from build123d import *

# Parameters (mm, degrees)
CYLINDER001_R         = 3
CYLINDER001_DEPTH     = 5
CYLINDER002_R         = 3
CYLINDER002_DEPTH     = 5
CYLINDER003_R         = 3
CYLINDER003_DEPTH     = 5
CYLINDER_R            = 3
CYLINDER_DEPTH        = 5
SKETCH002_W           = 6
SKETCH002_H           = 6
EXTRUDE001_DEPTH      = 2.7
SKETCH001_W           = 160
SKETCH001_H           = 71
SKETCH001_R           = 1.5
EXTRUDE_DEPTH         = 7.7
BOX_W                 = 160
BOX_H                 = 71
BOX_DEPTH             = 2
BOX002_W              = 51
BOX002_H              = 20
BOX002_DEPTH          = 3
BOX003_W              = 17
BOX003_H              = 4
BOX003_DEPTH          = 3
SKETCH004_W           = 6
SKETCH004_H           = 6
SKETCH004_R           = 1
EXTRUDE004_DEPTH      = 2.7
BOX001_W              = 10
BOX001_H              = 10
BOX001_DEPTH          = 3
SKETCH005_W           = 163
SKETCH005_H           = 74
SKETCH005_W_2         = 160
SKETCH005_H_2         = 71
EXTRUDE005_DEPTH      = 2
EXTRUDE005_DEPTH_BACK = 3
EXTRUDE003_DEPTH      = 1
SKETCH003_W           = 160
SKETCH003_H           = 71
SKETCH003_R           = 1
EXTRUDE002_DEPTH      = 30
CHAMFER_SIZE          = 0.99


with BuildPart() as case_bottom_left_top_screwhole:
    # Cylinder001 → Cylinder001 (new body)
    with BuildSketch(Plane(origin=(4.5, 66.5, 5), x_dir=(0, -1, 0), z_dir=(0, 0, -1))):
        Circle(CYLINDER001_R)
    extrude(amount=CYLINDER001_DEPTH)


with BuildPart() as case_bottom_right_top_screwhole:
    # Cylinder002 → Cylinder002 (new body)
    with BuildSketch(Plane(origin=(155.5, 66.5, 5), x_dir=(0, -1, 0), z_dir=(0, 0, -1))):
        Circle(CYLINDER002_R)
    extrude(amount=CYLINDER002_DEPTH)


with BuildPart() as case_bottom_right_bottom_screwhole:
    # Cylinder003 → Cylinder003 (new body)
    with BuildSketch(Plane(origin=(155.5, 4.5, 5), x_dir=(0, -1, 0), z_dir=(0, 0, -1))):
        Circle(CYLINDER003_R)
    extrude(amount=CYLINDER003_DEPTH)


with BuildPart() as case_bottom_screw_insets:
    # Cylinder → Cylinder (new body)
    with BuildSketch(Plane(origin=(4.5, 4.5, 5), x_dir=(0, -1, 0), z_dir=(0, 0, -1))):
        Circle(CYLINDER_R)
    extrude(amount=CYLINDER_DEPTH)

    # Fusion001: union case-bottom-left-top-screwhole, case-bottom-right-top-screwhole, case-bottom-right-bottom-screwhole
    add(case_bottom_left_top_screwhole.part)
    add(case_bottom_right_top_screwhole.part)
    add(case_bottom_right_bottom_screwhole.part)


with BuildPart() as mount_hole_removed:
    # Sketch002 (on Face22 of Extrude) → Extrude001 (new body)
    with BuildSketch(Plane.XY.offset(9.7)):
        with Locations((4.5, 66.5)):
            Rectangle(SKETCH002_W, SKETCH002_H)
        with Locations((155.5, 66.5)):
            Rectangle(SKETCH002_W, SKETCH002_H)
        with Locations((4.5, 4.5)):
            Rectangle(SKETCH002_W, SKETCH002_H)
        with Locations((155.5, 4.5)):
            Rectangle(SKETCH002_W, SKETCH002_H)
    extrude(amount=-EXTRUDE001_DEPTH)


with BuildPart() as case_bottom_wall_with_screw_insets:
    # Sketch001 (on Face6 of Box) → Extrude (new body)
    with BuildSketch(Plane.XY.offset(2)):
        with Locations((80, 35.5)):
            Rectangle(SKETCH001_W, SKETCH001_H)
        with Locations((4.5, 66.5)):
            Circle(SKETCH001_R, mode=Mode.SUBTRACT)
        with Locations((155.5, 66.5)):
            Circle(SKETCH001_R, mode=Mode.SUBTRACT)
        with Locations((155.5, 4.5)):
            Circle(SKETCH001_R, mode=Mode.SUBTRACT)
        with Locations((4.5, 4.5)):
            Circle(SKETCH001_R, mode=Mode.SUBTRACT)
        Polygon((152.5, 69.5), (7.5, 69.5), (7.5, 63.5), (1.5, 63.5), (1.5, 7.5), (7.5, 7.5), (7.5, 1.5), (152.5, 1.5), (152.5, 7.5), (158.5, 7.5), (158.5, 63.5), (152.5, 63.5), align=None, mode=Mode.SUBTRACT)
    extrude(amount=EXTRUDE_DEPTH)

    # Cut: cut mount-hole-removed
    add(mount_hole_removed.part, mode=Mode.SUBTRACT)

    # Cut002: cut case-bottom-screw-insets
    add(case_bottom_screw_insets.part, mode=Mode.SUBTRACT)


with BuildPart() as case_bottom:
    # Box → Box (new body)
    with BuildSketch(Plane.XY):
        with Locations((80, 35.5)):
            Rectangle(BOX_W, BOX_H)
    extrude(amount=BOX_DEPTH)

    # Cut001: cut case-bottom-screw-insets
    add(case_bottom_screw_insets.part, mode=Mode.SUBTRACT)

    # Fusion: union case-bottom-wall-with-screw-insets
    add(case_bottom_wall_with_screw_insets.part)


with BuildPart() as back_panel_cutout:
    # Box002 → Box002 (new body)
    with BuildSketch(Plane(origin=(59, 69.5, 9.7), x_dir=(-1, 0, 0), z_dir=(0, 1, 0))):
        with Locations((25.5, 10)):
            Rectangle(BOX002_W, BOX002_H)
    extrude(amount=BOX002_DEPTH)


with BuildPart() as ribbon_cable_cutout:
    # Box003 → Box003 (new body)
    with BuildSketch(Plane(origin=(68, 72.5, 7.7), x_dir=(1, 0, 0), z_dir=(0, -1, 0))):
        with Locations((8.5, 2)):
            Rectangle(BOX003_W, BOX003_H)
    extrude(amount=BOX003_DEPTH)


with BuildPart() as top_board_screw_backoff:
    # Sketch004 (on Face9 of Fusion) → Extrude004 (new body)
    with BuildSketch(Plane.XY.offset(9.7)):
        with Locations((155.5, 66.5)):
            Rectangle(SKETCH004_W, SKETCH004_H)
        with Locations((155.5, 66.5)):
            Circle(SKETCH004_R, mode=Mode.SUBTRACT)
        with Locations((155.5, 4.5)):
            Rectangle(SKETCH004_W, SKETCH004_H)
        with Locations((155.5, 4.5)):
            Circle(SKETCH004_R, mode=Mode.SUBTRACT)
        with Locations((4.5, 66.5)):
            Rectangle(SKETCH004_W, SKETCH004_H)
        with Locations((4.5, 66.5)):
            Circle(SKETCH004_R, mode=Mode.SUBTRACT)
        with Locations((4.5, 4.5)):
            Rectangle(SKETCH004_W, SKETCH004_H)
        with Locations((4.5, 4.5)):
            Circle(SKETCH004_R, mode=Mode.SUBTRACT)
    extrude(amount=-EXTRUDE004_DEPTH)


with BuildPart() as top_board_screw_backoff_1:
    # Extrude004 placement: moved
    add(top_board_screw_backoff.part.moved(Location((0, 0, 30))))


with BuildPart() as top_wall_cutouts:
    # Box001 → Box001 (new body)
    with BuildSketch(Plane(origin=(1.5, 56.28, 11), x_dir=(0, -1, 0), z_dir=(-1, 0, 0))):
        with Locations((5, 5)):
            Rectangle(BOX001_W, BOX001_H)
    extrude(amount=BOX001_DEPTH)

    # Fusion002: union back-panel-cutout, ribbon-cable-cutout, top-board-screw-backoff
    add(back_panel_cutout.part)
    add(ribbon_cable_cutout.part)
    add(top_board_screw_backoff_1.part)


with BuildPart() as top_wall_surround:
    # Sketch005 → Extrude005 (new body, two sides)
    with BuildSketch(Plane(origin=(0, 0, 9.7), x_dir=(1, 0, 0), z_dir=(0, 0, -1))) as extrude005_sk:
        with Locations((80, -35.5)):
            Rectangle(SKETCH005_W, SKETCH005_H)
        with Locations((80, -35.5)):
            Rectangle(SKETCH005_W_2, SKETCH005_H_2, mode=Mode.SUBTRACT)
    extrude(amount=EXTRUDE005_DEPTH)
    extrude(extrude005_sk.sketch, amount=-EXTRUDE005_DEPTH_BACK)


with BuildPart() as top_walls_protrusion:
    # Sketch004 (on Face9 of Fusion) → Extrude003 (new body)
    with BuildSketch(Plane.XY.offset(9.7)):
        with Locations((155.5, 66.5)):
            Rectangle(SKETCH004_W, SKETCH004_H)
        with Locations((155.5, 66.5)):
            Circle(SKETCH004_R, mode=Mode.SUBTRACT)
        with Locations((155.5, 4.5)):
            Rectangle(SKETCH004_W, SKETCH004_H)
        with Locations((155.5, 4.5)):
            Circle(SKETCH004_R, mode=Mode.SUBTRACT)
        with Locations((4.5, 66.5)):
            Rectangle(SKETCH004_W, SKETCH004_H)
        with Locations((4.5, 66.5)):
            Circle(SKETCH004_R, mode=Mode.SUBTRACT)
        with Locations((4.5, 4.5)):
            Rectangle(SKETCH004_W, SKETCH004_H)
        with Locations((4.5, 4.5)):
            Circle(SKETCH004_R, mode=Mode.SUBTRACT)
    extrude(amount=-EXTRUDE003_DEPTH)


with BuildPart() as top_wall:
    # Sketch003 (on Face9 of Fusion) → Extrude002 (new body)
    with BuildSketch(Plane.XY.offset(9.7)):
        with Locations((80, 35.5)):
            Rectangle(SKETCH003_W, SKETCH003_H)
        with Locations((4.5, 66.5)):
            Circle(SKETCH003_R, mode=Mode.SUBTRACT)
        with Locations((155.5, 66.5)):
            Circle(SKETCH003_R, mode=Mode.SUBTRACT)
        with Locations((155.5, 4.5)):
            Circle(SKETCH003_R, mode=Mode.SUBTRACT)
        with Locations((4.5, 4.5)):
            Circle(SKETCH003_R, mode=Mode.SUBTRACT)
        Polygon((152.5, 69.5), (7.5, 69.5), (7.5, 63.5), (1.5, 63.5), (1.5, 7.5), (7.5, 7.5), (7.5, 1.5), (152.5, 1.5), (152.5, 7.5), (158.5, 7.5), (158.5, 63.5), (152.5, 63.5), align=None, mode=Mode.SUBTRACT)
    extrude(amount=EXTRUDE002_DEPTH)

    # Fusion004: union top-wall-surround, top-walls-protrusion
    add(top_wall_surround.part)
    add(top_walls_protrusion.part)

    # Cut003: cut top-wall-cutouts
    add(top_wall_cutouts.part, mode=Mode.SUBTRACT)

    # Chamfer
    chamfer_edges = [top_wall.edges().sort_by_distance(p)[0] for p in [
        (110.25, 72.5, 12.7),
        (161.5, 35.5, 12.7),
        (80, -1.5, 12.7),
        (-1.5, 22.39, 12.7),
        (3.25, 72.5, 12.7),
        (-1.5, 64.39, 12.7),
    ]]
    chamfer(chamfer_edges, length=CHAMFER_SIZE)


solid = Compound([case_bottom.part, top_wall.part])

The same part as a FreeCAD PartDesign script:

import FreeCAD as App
import Part
import Sketcher

V = App.Vector
Q = App.Units.Quantity


def edges_at(feature, points):
    """Names of the edges that pass closest to the given points."""
    edges = feature.Shape.Edges
    near = lambda p: min(range(len(edges)), key=lambda i: edges[i].distToShape(Part.Vertex(*p))[0])
    return sorted({f"Edge{near(p) + 1}" for p in points})


def add_polygon(sketch, points):
    """Adds a closed chain of lines whose ends are joined by coincident constraints."""
    first, n = sketch.GeometryCount, len(points)
    for a, b in zip(points, points[1:] + points[:1]):
        sketch.addGeometry(Part.LineSegment(App.Vector(*a, 0), App.Vector(*b, 0)), False)
    for i in range(n):
        sketch.addConstraint(Sketcher.Constraint("Coincident", first + i, 2, first + (i + 1) % n, 1))

doc = App.newDocument("Part")
body = doc.addObject("PartDesign::Body", "Body")

# Sketch on XY plane
sketch1 = body.newObject("Sketcher::SketchObject", "Sketch")
sketch1.AttachmentSupport = (doc.getObject("XY_Plane"), [""])
sketch1.MapMode = "FlatFace"
sketch1.AttachmentOffset = App.Placement(V(0, 0, 5), App.Rotation())
sketch1.addGeometry(Part.Circle(V(4.5, 66.5, 0), V(0, 0, 1), 3), False)
sketch1.addConstraint([
    Sketcher.Constraint("Diameter", 0, Q("6 mm")),
    Sketcher.Constraint("DistanceX", -1, 1, 0, 3, Q("4.5 mm")),
    Sketcher.Constraint("DistanceY", -1, 1, 0, 3, Q("66.5 mm")),
])
pad1 = body.newObject("PartDesign::Pad", "Pad")
pad1.Profile = sketch1
pad1.Length = 5
pad1.Reversed = True
body2 = doc.addObject("PartDesign::Body", "Body001")

# Sketch on XY plane
sketch2 = body2.newObject("Sketcher::SketchObject", "Sketch001")
sketch2.AttachmentSupport = (doc.getObject("XY_Plane001"), [""])
sketch2.MapMode = "FlatFace"
sketch2.AttachmentOffset = App.Placement(V(0, 0, 5), App.Rotation())
sketch2.addGeometry(Part.Circle(V(155.5, 66.5, 0), V(0, 0, 1), 3), False)
sketch2.addConstraint([
    Sketcher.Constraint("Diameter", 0, Q("6 mm")),
    Sketcher.Constraint("DistanceX", -1, 1, 0, 3, Q("155.5 mm")),
    Sketcher.Constraint("DistanceY", -1, 1, 0, 3, Q("66.5 mm")),
])
pad2 = body2.newObject("PartDesign::Pad", "Pad001")
pad2.Profile = sketch2
pad2.Length = 5
pad2.Reversed = True
body3 = doc.addObject("PartDesign::Body", "Body002")

# Sketch on XY plane
sketch3 = body3.newObject("Sketcher::SketchObject", "Sketch002")
sketch3.AttachmentSupport = (doc.getObject("XY_Plane002"), [""])
sketch3.MapMode = "FlatFace"
sketch3.AttachmentOffset = App.Placement(V(0, 0, 5), App.Rotation())
sketch3.addGeometry(Part.Circle(V(155.5, 4.5, 0), V(0, 0, 1), 3), False)
sketch3.addConstraint([
    Sketcher.Constraint("Diameter", 0, Q("6 mm")),
    Sketcher.Constraint("DistanceX", -1, 1, 0, 3, Q("155.5 mm")),
    Sketcher.Constraint("DistanceY", -1, 1, 0, 3, Q("4.5 mm")),
])
pad3 = body3.newObject("PartDesign::Pad", "Pad002")
pad3.Profile = sketch3
pad3.Length = 5
pad3.Reversed = True
body4 = doc.addObject("PartDesign::Body", "Body003")
body4.AllowCompound = True

# Sketch on XY plane
sketch4 = body4.newObject("Sketcher::SketchObject", "Sketch003")
sketch4.AttachmentSupport = (doc.getObject("XY_Plane003"), [""])
sketch4.MapMode = "FlatFace"
sketch4.AttachmentOffset = App.Placement(V(0, 0, 5), App.Rotation())
sketch4.addGeometry(Part.Circle(V(4.5, 4.5, 0), V(0, 0, 1), 3), False)
sketch4.addConstraint([
    Sketcher.Constraint("Diameter", 0, Q("6 mm")),
    Sketcher.Constraint("DistanceX", -1, 1, 0, 3, Q("4.5 mm")),
    Sketcher.Constraint("DistanceY", -1, 1, 0, 3, Q("4.5 mm")),
])
pad4 = body4.newObject("PartDesign::Pad", "Pad003")
pad4.Profile = sketch4
pad4.Length = 5
pad4.Reversed = True
doc.recompute()

boolean = body4.newObject("PartDesign::Boolean", "Boolean")
boolean.Type = "Fuse"
boolean.addObjects([body])
doc.recompute()

boolean2 = body4.newObject("PartDesign::Boolean", "Boolean001")
boolean2.Type = "Fuse"
boolean2.addObjects([body2])
doc.recompute()

boolean3 = body4.newObject("PartDesign::Boolean", "Boolean002")
boolean3.Type = "Fuse"
boolean3.addObjects([body3])
body5 = doc.addObject("PartDesign::Body", "Body004")
body5.AllowCompound = True

# Sketch on XY plane
sketch5 = body5.newObject("Sketcher::SketchObject", "Sketch004")
sketch5.AttachmentSupport = (doc.getObject("XY_Plane004"), [""])
sketch5.MapMode = "FlatFace"
sketch5.AttachmentOffset = App.Placement(V(0, 0, 9.7), App.Rotation())
add_polygon(sketch5, [(1.5, 69.5), (1.5, 63.5), (7.5, 63.5), (7.5, 69.5)])  # lines 0-3
add_polygon(sketch5, [(152.5, 69.5), (152.5, 63.5), (158.5, 63.5), (158.5, 69.5)])  # lines 4-7
add_polygon(sketch5, [(1.5, 7.5), (1.5, 1.5), (7.5, 1.5), (7.5, 7.5)])  # lines 8-11
add_polygon(sketch5, [(152.5, 7.5), (152.5, 1.5), (158.5, 1.5), (158.5, 7.5)])  # lines 12-15
sketch5.addConstraint([
    Sketcher.Constraint("Vertical", 0),
    Sketcher.Constraint("Horizontal", 1),
    Sketcher.Constraint("Vertical", 2),
    Sketcher.Constraint("Horizontal", 3),
    Sketcher.Constraint("Vertical", 4),
    Sketcher.Constraint("Horizontal", 5),
    Sketcher.Constraint("Vertical", 6),
    Sketcher.Constraint("Horizontal", 7),
    Sketcher.Constraint("Vertical", 8),
    Sketcher.Constraint("Horizontal", 9),
    Sketcher.Constraint("Vertical", 10),
    Sketcher.Constraint("Horizontal", 11),
    Sketcher.Constraint("Vertical", 12),
    Sketcher.Constraint("Horizontal", 13),
    Sketcher.Constraint("Vertical", 14),
    Sketcher.Constraint("Horizontal", 15),
    Sketcher.Constraint("Horizontal", 1, 2, 4, 2),
    Sketcher.Constraint("Horizontal", 3, 2, 6, 2),
    Sketcher.Constraint("Horizontal", 9, 2, 12, 2),
    Sketcher.Constraint("Horizontal", 11, 2, 14, 2),
    Sketcher.Constraint("Vertical", 3, 2, 8, 2),
    Sketcher.Constraint("Vertical", 2, 2, 9, 2),
    Sketcher.Constraint("Vertical", 7, 2, 12, 2),
    Sketcher.Constraint("Vertical", 6, 2, 13, 2),
    Sketcher.Constraint("Equal", 3, 5),
    Sketcher.Constraint("Equal", 15, 0),
    Sketcher.Constraint("Equal", 6, 8),
    Sketcher.Constraint("DistanceX", 1, 1, 1, 2, Q("6 mm")),
    Sketcher.Constraint("DistanceX", 1, 2, 4, 2, Q("145 mm")),
    Sketcher.Constraint("DistanceY", 8, 2, 0, 2, Q("62 mm")),
    Sketcher.Constraint("DistanceX", -1, 1, 0, 2, Q("1.5 mm")),
    Sketcher.Constraint("DistanceY", -1, 1, 0, 2, Q("63.5 mm")),
])
pad5 = body5.newObject("PartDesign::Pad", "Pad004")
pad5.Profile = sketch5
pad5.Length = 2.7
pad5.Reversed = True
body6 = doc.addObject("PartDesign::Body", "Body005")

# Sketch on XY plane
sketch6 = body6.newObject("Sketcher::SketchObject", "Sketch005")
sketch6.AttachmentSupport = (doc.getObject("XY_Plane005"), [""])
sketch6.MapMode = "FlatFace"
sketch6.AttachmentOffset = App.Placement(V(0, 0, 2), App.Rotation())
add_polygon(sketch6, [(0, 71), (0, 0), (160, 0), (160, 71)])  # lines 0-3
sketch6.addGeometry(Part.Circle(V(4.5, 4.5, 0), V(0, 0, 1), 1.5), False)  # 4
sketch6.addGeometry(Part.Circle(V(155.5, 4.5, 0), V(0, 0, 1), 1.5), False)  # 5
sketch6.addGeometry(Part.Circle(V(4.5, 66.5, 0), V(0, 0, 1), 1.5), False)  # 6
add_polygon(sketch6, [(7.5, 69.5), (152.5, 69.5), (152.5, 63.5), (158.5, 63.5), (158.5, 7.5), (152.5, 7.5), (152.5, 1.5), (7.5, 1.5), (7.5, 7.5), (1.5, 7.5), (1.5, 63.5), (7.5, 63.5)])  # lines 7-18
sketch6.addGeometry(Part.Circle(V(155.5, 66.5, 0), V(0, 0, 1), 1.5), False)  # 19
sketch6.addConstraint([
    Sketcher.Constraint("Vertical", 0),
    Sketcher.Constraint("Horizontal", 1),
    Sketcher.Constraint("Vertical", 2),
    Sketcher.Constraint("Horizontal", 3),
    Sketcher.Constraint("Horizontal", 7),
    Sketcher.Constraint("Vertical", 8),
    Sketcher.Constraint("Horizontal", 9),
    Sketcher.Constraint("Vertical", 10),
    Sketcher.Constraint("Horizontal", 11),
    Sketcher.Constraint("Vertical", 12),
    Sketcher.Constraint("Horizontal", 13),
    Sketcher.Constraint("Vertical", 14),
    Sketcher.Constraint("Horizontal", 15),
    Sketcher.Constraint("Vertical", 16),
    Sketcher.Constraint("Horizontal", 17),
    Sketcher.Constraint("Vertical", 18),
    Sketcher.Constraint("Coincident", 0, 2, -1, 1),
    Sketcher.Constraint("Equal", 4, 5),
    Sketcher.Constraint("Equal", 5, 6),
    Sketcher.Constraint("Equal", 6, 19),
    Sketcher.Constraint("Horizontal", 4, 3, 5, 3),
    Sketcher.Constraint("Horizontal", 6, 3, 19, 3),
    Sketcher.Constraint("Horizontal", 11, 2, 14, 2),
    Sketcher.Constraint("Horizontal", 9, 2, 16, 2),
    Sketcher.Constraint("Vertical", 4, 3, 6, 3),
    Sketcher.Constraint("Vertical", 5, 3, 19, 3),
    Sketcher.Constraint("Vertical", 8, 2, 11, 2),
    Sketcher.Constraint("Vertical", 14, 2, 17, 2),
    Sketcher.Constraint("Equal", 11, 15),
    Sketcher.Constraint("Equal", 17, 8),
    Sketcher.Constraint("Equal", 8, 12),
    Sketcher.Constraint("Diameter", 4, Q("3 mm")),
    Sketcher.Constraint("DistanceX", 1, 1, 1, 2, Q("160 mm")),
    Sketcher.Constraint("DistanceX", 7, 1, 7, 2, Q("145 mm")),
    Sketcher.Constraint("DistanceX", 9, 1, 9, 2, Q("6 mm")),
    Sketcher.Constraint("DistanceY", 0, 2, 0, 1, Q("71 mm")),
    Sketcher.Constraint("DistanceY", 10, 2, 10, 1, Q("56 mm")),
    Sketcher.Constraint("DistanceX", 4, 3, 5, 3, Q("151 mm")),
    Sketcher.Constraint("DistanceY", 4, 3, 6, 3, Q("62 mm")),
    Sketcher.Constraint("DistanceX", 7, 2, 19, 3, Q("3 mm")),
    Sketcher.Constraint("DistanceY", 19, 3, 7, 2, Q("3 mm")),
    Sketcher.Constraint("DistanceX", -1, 1, 4, 3, Q("4.5 mm")),
    Sketcher.Constraint("DistanceY", -1, 1, 4, 3, Q("4.5 mm")),
])
pad6 = body6.newObject("PartDesign::Pad", "Pad005")
pad6.Profile = sketch6
pad6.Length = 7.7
doc.recompute()

boolean4 = body6.newObject("PartDesign::Boolean", "Boolean003")
boolean4.Type = "Cut"
boolean4.addObjects([body5])
doc.recompute()

body7 = doc.addObject("PartDesign::Body", "Body006")
body7.BaseFeature = body4
boolean5 = body6.newObject("PartDesign::Boolean", "Boolean004")
boolean5.Type = "Cut"
boolean5.addObjects([body7])
doc.recompute()
body8 = doc.addObject("PartDesign::Body", "Body007")

# Sketch on XY plane
sketch7 = body8.newObject("Sketcher::SketchObject", "Sketch006")
sketch7.AttachmentSupport = (doc.getObject("XY_Plane007"), [""])
sketch7.MapMode = "FlatFace"
add_polygon(sketch7, [(0, 71), (0, 0), (160, 0), (160, 71)])  # lines 0-3
sketch7.addConstraint([
    Sketcher.Constraint("Vertical", 0),
    Sketcher.Constraint("Horizontal", 1),
    Sketcher.Constraint("Vertical", 2),
    Sketcher.Constraint("Horizontal", 3),
    Sketcher.Constraint("Coincident", 0, 2, -1, 1),
    Sketcher.Constraint("DistanceX", 1, 1, 1, 2, Q("160 mm")),
    Sketcher.Constraint("DistanceY", 0, 2, 0, 1, Q("71 mm")),
])
pad7 = body8.newObject("PartDesign::Pad", "Pad006")
pad7.Profile = sketch7
pad7.Length = 2
doc.recompute()

boolean6 = body8.newObject("PartDesign::Boolean", "Boolean005")
boolean6.Type = "Cut"
boolean6.addObjects([body4])
doc.recompute()

boolean7 = body8.newObject("PartDesign::Boolean", "Boolean006")
boolean7.Type = "Fuse"
boolean7.addObjects([body6])
body9 = doc.addObject("PartDesign::Body", "Body008")

# Sketch on XZ plane
sketch8 = body9.newObject("Sketcher::SketchObject", "Sketch007")
sketch8.AttachmentSupport = (doc.getObject("XZ_Plane008"), [""])
sketch8.MapMode = "FlatFace"
sketch8.AttachmentOffset = App.Placement(V(0, 0, -69.5), App.Rotation())
add_polygon(sketch8, [(59, 29.7), (59, 9.7), (8, 9.7), (8, 29.7)])  # lines 0-3
sketch8.addConstraint([
    Sketcher.Constraint("Vertical", 0),
    Sketcher.Constraint("Horizontal", 1),
    Sketcher.Constraint("Vertical", 2),
    Sketcher.Constraint("Horizontal", 3),
    Sketcher.Constraint("DistanceX", 1, 2, 1, 1, Q("51 mm")),
    Sketcher.Constraint("DistanceY", 0, 2, 0, 1, Q("20 mm")),
    Sketcher.Constraint("DistanceX", -1, 1, 0, 2, Q("59 mm")),
    Sketcher.Constraint("DistanceY", -1, 1, 0, 2, Q("9.7 mm")),
])
pad8 = body9.newObject("PartDesign::Pad", "Pad007")
pad8.Profile = sketch8
pad8.Length = 3
pad8.Reversed = True
body10 = doc.addObject("PartDesign::Body", "Body009")

# Sketch on XZ plane
sketch9 = body10.newObject("Sketcher::SketchObject", "Sketch008")
sketch9.AttachmentSupport = (doc.getObject("XZ_Plane009"), [""])
sketch9.MapMode = "FlatFace"
sketch9.AttachmentOffset = App.Placement(V(0, 0, -72.5), App.Rotation())
add_polygon(sketch9, [(68, 11.7), (68, 7.7), (85, 7.7), (85, 11.7)])  # lines 0-3
sketch9.addConstraint([
    Sketcher.Constraint("Vertical", 0),
    Sketcher.Constraint("Horizontal", 1),
    Sketcher.Constraint("Vertical", 2),
    Sketcher.Constraint("Horizontal", 3),
    Sketcher.Constraint("DistanceX", 1, 1, 1, 2, Q("17 mm")),
    Sketcher.Constraint("DistanceY", 0, 2, 0, 1, Q("4 mm")),
    Sketcher.Constraint("DistanceX", -1, 1, 0, 2, Q("68 mm")),
    Sketcher.Constraint("DistanceY", -1, 1, 0, 2, Q("7.7 mm")),
])
pad9 = body10.newObject("PartDesign::Pad", "Pad008")
pad9.Profile = sketch9
pad9.Length = 3
body11 = doc.addObject("PartDesign::Body", "Body010")
body11.AllowCompound = True

# Sketch on XY plane
sketch10 = body11.newObject("Sketcher::SketchObject", "Sketch009")
sketch10.AttachmentSupport = (doc.getObject("XY_Plane010"), [""])
sketch10.MapMode = "FlatFace"
sketch10.AttachmentOffset = App.Placement(V(0, 0, 9.7), App.Rotation())
add_polygon(sketch10, [(152.5, 69.5), (152.5, 63.5), (158.5, 63.5), (158.5, 69.5)])  # lines 0-3
sketch10.addGeometry(Part.Circle(V(155.5, 66.5, 0), V(0, 0, 1), 1), False)  # 4
add_polygon(sketch10, [(152.5, 7.5), (152.5, 1.5), (158.5, 1.5), (158.5, 7.5)])  # lines 5-8
sketch10.addGeometry(Part.Circle(V(155.5, 4.5, 0), V(0, 0, 1), 1), False)  # 9
add_polygon(sketch10, [(1.5, 69.5), (1.5, 63.5), (7.5, 63.5), (7.5, 69.5)])  # lines 10-13
sketch10.addGeometry(Part.Circle(V(4.5, 66.5, 0), V(0, 0, 1), 1), False)  # 14
add_polygon(sketch10, [(1.5, 7.5), (1.5, 1.5), (7.5, 1.5), (7.5, 7.5)])  # lines 15-18
sketch10.addGeometry(Part.Circle(V(4.5, 4.5, 0), V(0, 0, 1), 1), False)  # 19
sketch10.addConstraint([
    Sketcher.Constraint("Vertical", 0),
    Sketcher.Constraint("Horizontal", 1),
    Sketcher.Constraint("Vertical", 2),
    Sketcher.Constraint("Horizontal", 3),
    Sketcher.Constraint("Vertical", 5),
    Sketcher.Constraint("Horizontal", 6),
    Sketcher.Constraint("Vertical", 7),
    Sketcher.Constraint("Horizontal", 8),
    Sketcher.Constraint("Vertical", 10),
    Sketcher.Constraint("Horizontal", 11),
    Sketcher.Constraint("Vertical", 12),
    Sketcher.Constraint("Horizontal", 13),
    Sketcher.Constraint("Vertical", 15),
    Sketcher.Constraint("Horizontal", 16),
    Sketcher.Constraint("Vertical", 17),
    Sketcher.Constraint("Horizontal", 18),
    Sketcher.Constraint("Equal", 4, 9),
    Sketcher.Constraint("Equal", 9, 14),
    Sketcher.Constraint("Equal", 14, 19),
    Sketcher.Constraint("Horizontal", 4, 3, 14, 3),
    Sketcher.Constraint("Horizontal", 9, 3, 19, 3),
    Sketcher.Constraint("Horizontal", 1, 2, 10, 2),
    Sketcher.Constraint("Horizontal", 3, 2, 12, 2),
    Sketcher.Constraint("Horizontal", 6, 2, 15, 2),
    Sketcher.Constraint("Horizontal", 8, 2, 17, 2),
    Sketcher.Constraint("Vertical", 4, 3, 9, 3),
    Sketcher.Constraint("Vertical", 14, 3, 19, 3),
    Sketcher.Constraint("Vertical", 3, 2, 5, 2),
    Sketcher.Constraint("Vertical", 2, 2, 6, 2),
    Sketcher.Constraint("Vertical", 13, 2, 15, 2),
    Sketcher.Constraint("Vertical", 12, 2, 16, 2),
    Sketcher.Constraint("Equal", 8, 11),
    Sketcher.Constraint("Equal", 18, 0),
    Sketcher.Constraint("Equal", 2, 5),
    Sketcher.Constraint("Diameter", 4, Q("2 mm")),
    Sketcher.Constraint("DistanceX", 1, 1, 1, 2, Q("6 mm")),
    Sketcher.Constraint("DistanceY", 9, 3, 4, 3, Q("62 mm")),
    Sketcher.Constraint("DistanceX", 14, 3, 4, 3, Q("151 mm")),
    Sketcher.Constraint("DistanceX", 0, 2, 4, 3, Q("3 mm")),
    Sketcher.Constraint("DistanceY", 0, 2, 4, 3, Q("3 mm")),
    Sketcher.Constraint("DistanceY", 5, 2, 9, 3, Q("3 mm")),
    Sketcher.Constraint("DistanceX", 10, 2, 14, 3, Q("3 mm")),
    Sketcher.Constraint("DistanceX", -1, 1, 4, 3, Q("155.5 mm")),
    Sketcher.Constraint("DistanceY", -1, 1, 4, 3, Q("66.5 mm")),
])
pad10 = body11.newObject("PartDesign::Pad", "Pad009")
pad10.Profile = sketch10
pad10.Length = 2.7
pad10.Reversed = True
body12 = doc.addObject("PartDesign::Body", "Body011")
body12.AllowCompound = True
doc.recompute()

body11.Placement = App.Placement(V(0, 0, 30), App.Rotation(V(0, 0, 1), 0))
boolean8 = body12.newObject("PartDesign::Boolean", "Boolean007")
boolean8.Type = "Fuse"
boolean8.addObjects([body11])
body13 = doc.addObject("PartDesign::Body", "Body012")
body13.AllowCompound = True

# Sketch on YZ plane
sketch11 = body13.newObject("Sketcher::SketchObject", "Sketch010")
sketch11.AttachmentSupport = (doc.getObject("YZ_Plane012"), [""])
sketch11.MapMode = "FlatFace"
sketch11.AttachmentOffset = App.Placement(V(0, 0, 1.5), App.Rotation())
add_polygon(sketch11, [(56.28, 21), (56.28, 11), (46.28, 11), (46.28, 21)])  # lines 0-3
sketch11.addConstraint([
    Sketcher.Constraint("Vertical", 0),
    Sketcher.Constraint("Horizontal", 1),
    Sketcher.Constraint("Vertical", 2),
    Sketcher.Constraint("Horizontal", 3),
    Sketcher.Constraint("Equal", 3, 0),
    Sketcher.Constraint("DistanceX", 1, 2, 1, 1, Q("10 mm")),
    Sketcher.Constraint("DistanceY", -1, 1, 0, 2, Q("11 mm")),
    Sketcher.Constraint("DistanceX", -1, 1, 0, 2, Q("56.28 mm")),
])
pad11 = body13.newObject("PartDesign::Pad", "Pad010")
pad11.Profile = sketch11
pad11.Length = 3
pad11.Reversed = True
doc.recompute()

boolean9 = body13.newObject("PartDesign::Boolean", "Boolean008")
boolean9.Type = "Fuse"
boolean9.addObjects([body9])
doc.recompute()

boolean10 = body13.newObject("PartDesign::Boolean", "Boolean009")
boolean10.Type = "Fuse"
boolean10.addObjects([body10])
doc.recompute()

boolean11 = body13.newObject("PartDesign::Boolean", "Boolean010")
boolean11.Type = "Fuse"
boolean11.addObjects([body12])
body14 = doc.addObject("PartDesign::Body", "Body013")

# Sketch on XY plane
sketch12 = body14.newObject("Sketcher::SketchObject", "Sketch011")
sketch12.AttachmentSupport = (doc.getObject("XY_Plane013"), [""])
sketch12.MapMode = "FlatFace"
sketch12.AttachmentOffset = App.Placement(V(0, 0, 9.7), App.Rotation())
add_polygon(sketch12, [(-1.5, -1.5), (-1.5, 72.5), (161.5, 72.5), (161.5, -1.5)])  # lines 0-3
add_polygon(sketch12, [(160, 71), (0, 71), (0, 0), (160, 0)])  # lines 4-7
sketch12.addConstraint([
    Sketcher.Constraint("Vertical", 0),
    Sketcher.Constraint("Horizontal", 1),
    Sketcher.Constraint("Vertical", 2),
    Sketcher.Constraint("Horizontal", 3),
    Sketcher.Constraint("Horizontal", 4),
    Sketcher.Constraint("Vertical", 5),
    Sketcher.Constraint("Horizontal", 6),
    Sketcher.Constraint("Vertical", 7),
    Sketcher.Constraint("Coincident", 5, 2, -1, 1),
    Sketcher.Constraint("DistanceX", 1, 1, 1, 2, Q("163 mm")),
    Sketcher.Constraint("DistanceX", 4, 2, 4, 1, Q("160 mm")),
    Sketcher.Constraint("DistanceY", 0, 1, 0, 2, Q("74 mm")),
    Sketcher.Constraint("DistanceY", 5, 2, 5, 1, Q("71 mm")),
    Sketcher.Constraint("DistanceX", 0, 2, -1, 1, Q("1.5 mm")),
    Sketcher.Constraint("DistanceY", -1, 1, 0, 2, Q("72.5 mm")),
])
pad12 = body14.newObject("PartDesign::Pad", "Pad011")
pad12.Profile = sketch12
pad12.Type = "TwoLengths"
pad12.Length = 2
pad12.Length2 = 3
pad12.Reversed = True
body15 = doc.addObject("PartDesign::Body", "Body014")
body15.AllowCompound = True

# Sketch on XY plane
sketch13 = body15.newObject("Sketcher::SketchObject", "Sketch012")
sketch13.AttachmentSupport = (doc.getObject("XY_Plane014"), [""])
sketch13.MapMode = "FlatFace"
sketch13.AttachmentOffset = App.Placement(V(0, 0, 9.7), App.Rotation())
add_polygon(sketch13, [(152.5, 69.5), (152.5, 63.5), (158.5, 63.5), (158.5, 69.5)])  # lines 0-3
sketch13.addGeometry(Part.Circle(V(155.5, 66.5, 0), V(0, 0, 1), 1), False)  # 4
add_polygon(sketch13, [(152.5, 7.5), (152.5, 1.5), (158.5, 1.5), (158.5, 7.5)])  # lines 5-8
sketch13.addGeometry(Part.Circle(V(155.5, 4.5, 0), V(0, 0, 1), 1), False)  # 9
add_polygon(sketch13, [(1.5, 69.5), (1.5, 63.5), (7.5, 63.5), (7.5, 69.5)])  # lines 10-13
sketch13.addGeometry(Part.Circle(V(4.5, 66.5, 0), V(0, 0, 1), 1), False)  # 14
add_polygon(sketch13, [(1.5, 7.5), (1.5, 1.5), (7.5, 1.5), (7.5, 7.5)])  # lines 15-18
sketch13.addGeometry(Part.Circle(V(4.5, 4.5, 0), V(0, 0, 1), 1), False)  # 19
sketch13.addConstraint([
    Sketcher.Constraint("Vertical", 0),
    Sketcher.Constraint("Horizontal", 1),
    Sketcher.Constraint("Vertical", 2),
    Sketcher.Constraint("Horizontal", 3),
    Sketcher.Constraint("Vertical", 5),
    Sketcher.Constraint("Horizontal", 6),
    Sketcher.Constraint("Vertical", 7),
    Sketcher.Constraint("Horizontal", 8),
    Sketcher.Constraint("Vertical", 10),
    Sketcher.Constraint("Horizontal", 11),
    Sketcher.Constraint("Vertical", 12),
    Sketcher.Constraint("Horizontal", 13),
    Sketcher.Constraint("Vertical", 15),
    Sketcher.Constraint("Horizontal", 16),
    Sketcher.Constraint("Vertical", 17),
    Sketcher.Constraint("Horizontal", 18),
    Sketcher.Constraint("Equal", 4, 9),
    Sketcher.Constraint("Equal", 9, 14),
    Sketcher.Constraint("Equal", 14, 19),
    Sketcher.Constraint("Horizontal", 4, 3, 14, 3),
    Sketcher.Constraint("Horizontal", 9, 3, 19, 3),
    Sketcher.Constraint("Horizontal", 1, 2, 10, 2),
    Sketcher.Constraint("Horizontal", 3, 2, 12, 2),
    Sketcher.Constraint("Horizontal", 6, 2, 15, 2),
    Sketcher.Constraint("Horizontal", 8, 2, 17, 2),
    Sketcher.Constraint("Vertical", 4, 3, 9, 3),
    Sketcher.Constraint("Vertical", 14, 3, 19, 3),
    Sketcher.Constraint("Vertical", 3, 2, 5, 2),
    Sketcher.Constraint("Vertical", 2, 2, 6, 2),
    Sketcher.Constraint("Vertical", 13, 2, 15, 2),
    Sketcher.Constraint("Vertical", 12, 2, 16, 2),
    Sketcher.Constraint("Equal", 8, 11),
    Sketcher.Constraint("Equal", 18, 0),
    Sketcher.Constraint("Equal", 2, 5),
    Sketcher.Constraint("Diameter", 4, Q("2 mm")),
    Sketcher.Constraint("DistanceX", 1, 1, 1, 2, Q("6 mm")),
    Sketcher.Constraint("DistanceY", 9, 3, 4, 3, Q("62 mm")),
    Sketcher.Constraint("DistanceX", 14, 3, 4, 3, Q("151 mm")),
    Sketcher.Constraint("DistanceX", 0, 2, 4, 3, Q("3 mm")),
    Sketcher.Constraint("DistanceY", 0, 2, 4, 3, Q("3 mm")),
    Sketcher.Constraint("DistanceY", 5, 2, 9, 3, Q("3 mm")),
    Sketcher.Constraint("DistanceX", 10, 2, 14, 3, Q("3 mm")),
    Sketcher.Constraint("DistanceX", -1, 1, 4, 3, Q("155.5 mm")),
    Sketcher.Constraint("DistanceY", -1, 1, 4, 3, Q("66.5 mm")),
])
pad13 = body15.newObject("PartDesign::Pad", "Pad012")
pad13.Profile = sketch13
pad13.Length = 1
pad13.Reversed = True
body16 = doc.addObject("PartDesign::Body", "Body015")

# Sketch on XY plane
sketch14 = body16.newObject("Sketcher::SketchObject", "Sketch013")
sketch14.AttachmentSupport = (doc.getObject("XY_Plane015"), [""])
sketch14.MapMode = "FlatFace"
sketch14.AttachmentOffset = App.Placement(V(0, 0, 9.7), App.Rotation())
add_polygon(sketch14, [(0, 71), (0, 0), (160, 0), (160, 71)])  # lines 0-3
sketch14.addGeometry(Part.Circle(V(4.5, 4.5, 0), V(0, 0, 1), 1), False)  # 4
sketch14.addGeometry(Part.Circle(V(155.5, 4.5, 0), V(0, 0, 1), 1), False)  # 5
sketch14.addGeometry(Part.Circle(V(4.5, 66.5, 0), V(0, 0, 1), 1), False)  # 6
add_polygon(sketch14, [(7.5, 69.5), (152.5, 69.5), (152.5, 63.5), (158.5, 63.5), (158.5, 7.5), (152.5, 7.5), (152.5, 1.5), (7.5, 1.5), (7.5, 7.5), (1.5, 7.5), (1.5, 63.5), (7.5, 63.5)])  # lines 7-18
sketch14.addGeometry(Part.Circle(V(155.5, 66.5, 0), V(0, 0, 1), 1), False)  # 19
sketch14.addConstraint([
    Sketcher.Constraint("Vertical", 0),
    Sketcher.Constraint("Horizontal", 1),
    Sketcher.Constraint("Vertical", 2),
    Sketcher.Constraint("Horizontal", 3),
    Sketcher.Constraint("Horizontal", 7),
    Sketcher.Constraint("Vertical", 8),
    Sketcher.Constraint("Horizontal", 9),
    Sketcher.Constraint("Vertical", 10),
    Sketcher.Constraint("Horizontal", 11),
    Sketcher.Constraint("Vertical", 12),
    Sketcher.Constraint("Horizontal", 13),
    Sketcher.Constraint("Vertical", 14),
    Sketcher.Constraint("Horizontal", 15),
    Sketcher.Constraint("Vertical", 16),
    Sketcher.Constraint("Horizontal", 17),
    Sketcher.Constraint("Vertical", 18),
    Sketcher.Constraint("Coincident", 0, 2, -1, 1),
    Sketcher.Constraint("Equal", 4, 5),
    Sketcher.Constraint("Equal", 5, 6),
    Sketcher.Constraint("Equal", 6, 19),
    Sketcher.Constraint("Horizontal", 4, 3, 5, 3),
    Sketcher.Constraint("Horizontal", 6, 3, 19, 3),
    Sketcher.Constraint("Horizontal", 11, 2, 14, 2),
    Sketcher.Constraint("Horizontal", 9, 2, 16, 2),
    Sketcher.Constraint("Vertical", 4, 3, 6, 3),
    Sketcher.Constraint("Vertical", 5, 3, 19, 3),
    Sketcher.Constraint("Vertical", 8, 2, 11, 2),
    Sketcher.Constraint("Vertical", 14, 2, 17, 2),
    Sketcher.Constraint("Equal", 11, 15),
    Sketcher.Constraint("Equal", 17, 8),
    Sketcher.Constraint("Equal", 8, 12),
    Sketcher.Constraint("Diameter", 4, Q("2 mm")),
    Sketcher.Constraint("DistanceX", 1, 1, 1, 2, Q("160 mm")),
    Sketcher.Constraint("DistanceX", 7, 1, 7, 2, Q("145 mm")),
    Sketcher.Constraint("DistanceX", 9, 1, 9, 2, Q("6 mm")),
    Sketcher.Constraint("DistanceY", 0, 2, 0, 1, Q("71 mm")),
    Sketcher.Constraint("DistanceY", 10, 2, 10, 1, Q("56 mm")),
    Sketcher.Constraint("DistanceX", 4, 3, 5, 3, Q("151 mm")),
    Sketcher.Constraint("DistanceY", 4, 3, 6, 3, Q("62 mm")),
    Sketcher.Constraint("DistanceX", 7, 2, 19, 3, Q("3 mm")),
    Sketcher.Constraint("DistanceY", 19, 3, 7, 2, Q("3 mm")),
    Sketcher.Constraint("DistanceX", -1, 1, 4, 3, Q("4.5 mm")),
    Sketcher.Constraint("DistanceY", -1, 1, 4, 3, Q("4.5 mm")),
])
pad14 = body16.newObject("PartDesign::Pad", "Pad013")
pad14.Profile = sketch14
pad14.Length = 30
doc.recompute()

boolean12 = body16.newObject("PartDesign::Boolean", "Boolean011")
boolean12.Type = "Fuse"
boolean12.addObjects([body14])
doc.recompute()

boolean13 = body16.newObject("PartDesign::Boolean", "Boolean012")
boolean13.Type = "Fuse"
boolean13.addObjects([body15])
doc.recompute()

boolean14 = body16.newObject("PartDesign::Boolean", "Boolean013")
boolean14.Type = "Cut"
boolean14.addObjects([body13])
doc.recompute()

chamfer = body16.newObject("PartDesign::Chamfer", "Chamfer")
chamfer.Base = (boolean14, edges_at(boolean14, [
    (110.25, 72.5, 12.7),
    (161.5, 35.5, 12.7),
    (80, -1.5, 12.7),
    (-1.5, 22.39, 12.7),
    (3.25, 72.5, 12.7),
    (-1.5, 64.39, 12.7),
]))
chamfer.Size = 0.99

doc.recompute()
